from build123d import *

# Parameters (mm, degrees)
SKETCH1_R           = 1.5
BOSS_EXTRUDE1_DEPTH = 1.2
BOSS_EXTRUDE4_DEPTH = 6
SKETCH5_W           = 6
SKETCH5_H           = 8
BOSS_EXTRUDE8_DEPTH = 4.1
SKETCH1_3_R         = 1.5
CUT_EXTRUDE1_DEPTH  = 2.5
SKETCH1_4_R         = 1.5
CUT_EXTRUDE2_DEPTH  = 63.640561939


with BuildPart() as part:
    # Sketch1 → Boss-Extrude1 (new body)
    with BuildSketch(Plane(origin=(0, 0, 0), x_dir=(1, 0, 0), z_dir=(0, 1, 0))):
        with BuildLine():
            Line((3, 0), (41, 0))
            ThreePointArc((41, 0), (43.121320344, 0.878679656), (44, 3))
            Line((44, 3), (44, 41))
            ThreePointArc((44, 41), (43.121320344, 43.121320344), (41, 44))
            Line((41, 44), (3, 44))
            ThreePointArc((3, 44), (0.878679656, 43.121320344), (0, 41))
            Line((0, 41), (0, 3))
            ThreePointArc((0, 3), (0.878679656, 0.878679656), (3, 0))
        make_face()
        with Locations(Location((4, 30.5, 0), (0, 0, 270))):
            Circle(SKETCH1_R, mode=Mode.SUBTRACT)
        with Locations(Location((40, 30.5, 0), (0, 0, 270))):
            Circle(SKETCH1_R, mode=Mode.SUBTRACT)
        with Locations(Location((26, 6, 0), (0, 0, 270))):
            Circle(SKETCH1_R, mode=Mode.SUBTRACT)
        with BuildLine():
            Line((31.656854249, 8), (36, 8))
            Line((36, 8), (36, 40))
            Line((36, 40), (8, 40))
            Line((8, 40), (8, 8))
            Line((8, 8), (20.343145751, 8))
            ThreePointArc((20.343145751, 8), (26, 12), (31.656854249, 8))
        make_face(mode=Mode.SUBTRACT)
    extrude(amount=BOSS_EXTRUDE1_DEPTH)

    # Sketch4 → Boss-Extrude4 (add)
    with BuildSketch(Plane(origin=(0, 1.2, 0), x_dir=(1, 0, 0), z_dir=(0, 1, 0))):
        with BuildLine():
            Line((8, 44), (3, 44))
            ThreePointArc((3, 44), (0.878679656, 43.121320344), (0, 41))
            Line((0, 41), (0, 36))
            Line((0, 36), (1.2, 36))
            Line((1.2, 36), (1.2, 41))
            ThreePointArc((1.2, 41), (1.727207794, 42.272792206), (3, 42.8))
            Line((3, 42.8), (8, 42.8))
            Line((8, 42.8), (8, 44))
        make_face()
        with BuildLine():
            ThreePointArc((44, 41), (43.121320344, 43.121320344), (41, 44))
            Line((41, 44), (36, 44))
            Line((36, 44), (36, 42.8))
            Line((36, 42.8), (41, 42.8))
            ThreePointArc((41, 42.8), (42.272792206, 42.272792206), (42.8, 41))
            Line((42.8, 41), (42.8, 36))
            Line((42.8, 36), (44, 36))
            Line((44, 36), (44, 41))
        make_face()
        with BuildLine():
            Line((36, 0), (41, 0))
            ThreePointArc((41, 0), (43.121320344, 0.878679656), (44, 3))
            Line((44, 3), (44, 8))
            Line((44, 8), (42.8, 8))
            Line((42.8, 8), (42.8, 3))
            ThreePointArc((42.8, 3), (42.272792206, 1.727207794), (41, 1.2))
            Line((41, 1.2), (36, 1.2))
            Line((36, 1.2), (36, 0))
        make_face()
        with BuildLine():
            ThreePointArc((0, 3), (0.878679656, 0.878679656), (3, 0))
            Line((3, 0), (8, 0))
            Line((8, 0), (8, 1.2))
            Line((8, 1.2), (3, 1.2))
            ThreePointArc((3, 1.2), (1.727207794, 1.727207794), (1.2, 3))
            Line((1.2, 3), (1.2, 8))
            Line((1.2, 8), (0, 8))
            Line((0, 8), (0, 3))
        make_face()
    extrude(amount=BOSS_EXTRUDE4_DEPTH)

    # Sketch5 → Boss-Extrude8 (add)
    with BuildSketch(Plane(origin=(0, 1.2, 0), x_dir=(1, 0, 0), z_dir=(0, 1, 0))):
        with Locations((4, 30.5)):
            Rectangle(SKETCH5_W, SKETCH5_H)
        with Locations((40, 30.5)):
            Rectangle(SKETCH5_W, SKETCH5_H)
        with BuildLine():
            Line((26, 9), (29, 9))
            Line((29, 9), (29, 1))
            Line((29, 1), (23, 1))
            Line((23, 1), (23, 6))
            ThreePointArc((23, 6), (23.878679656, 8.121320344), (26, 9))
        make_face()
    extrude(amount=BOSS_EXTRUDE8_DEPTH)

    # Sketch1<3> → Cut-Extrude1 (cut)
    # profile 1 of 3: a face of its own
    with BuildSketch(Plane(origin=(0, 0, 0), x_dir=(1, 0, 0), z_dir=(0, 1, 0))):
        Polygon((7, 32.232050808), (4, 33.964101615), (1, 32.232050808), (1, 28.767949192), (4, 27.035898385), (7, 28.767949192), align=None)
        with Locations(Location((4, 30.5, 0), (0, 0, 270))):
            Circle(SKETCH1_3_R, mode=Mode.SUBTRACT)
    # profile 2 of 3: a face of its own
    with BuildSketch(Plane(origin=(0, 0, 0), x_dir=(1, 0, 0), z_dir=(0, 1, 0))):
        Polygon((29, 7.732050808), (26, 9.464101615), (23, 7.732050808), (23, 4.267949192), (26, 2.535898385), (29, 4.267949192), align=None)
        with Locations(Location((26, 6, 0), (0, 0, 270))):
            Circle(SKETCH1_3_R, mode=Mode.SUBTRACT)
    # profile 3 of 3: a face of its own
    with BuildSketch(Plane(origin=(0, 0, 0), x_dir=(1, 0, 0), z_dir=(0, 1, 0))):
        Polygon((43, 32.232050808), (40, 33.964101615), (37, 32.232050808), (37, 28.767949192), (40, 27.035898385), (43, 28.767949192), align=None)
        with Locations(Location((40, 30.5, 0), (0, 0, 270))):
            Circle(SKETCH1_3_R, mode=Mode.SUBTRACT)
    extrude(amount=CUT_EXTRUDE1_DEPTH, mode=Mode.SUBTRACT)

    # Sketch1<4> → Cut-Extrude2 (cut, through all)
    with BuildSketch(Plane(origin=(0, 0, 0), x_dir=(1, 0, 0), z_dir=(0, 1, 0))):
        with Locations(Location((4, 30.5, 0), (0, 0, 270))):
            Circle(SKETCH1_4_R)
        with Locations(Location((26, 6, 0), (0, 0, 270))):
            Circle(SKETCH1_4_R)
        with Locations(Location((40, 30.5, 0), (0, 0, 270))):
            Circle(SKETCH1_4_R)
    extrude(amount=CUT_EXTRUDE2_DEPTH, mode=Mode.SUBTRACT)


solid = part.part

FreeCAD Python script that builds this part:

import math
import FreeCAD as App
import Part
import Sketcher
Q = App.Units.Quantity

doc = App.newDocument("Part")
body = doc.addObject("PartDesign::Body", "Body")

# Sketch on XZ plane
sketch1 = doc.addObject("Sketcher::SketchObject", "Sketch")
body.addObject(sketch1)
sketch1.AttachmentSupport = (doc.XZ_Plane, [""])
sketch1.MapMode = "FlatFace"
sketch1.addGeometry(Part.LineSegment(App.Vector(3, 0, 0), App.Vector(41, 0, 0)), False)
sketch1.addGeometry(Part.ArcOfCircle(Part.Circle(App.Vector(41, -3, 0), App.Vector(0, 0, 1), 3), math.radians(0), math.radians(90)), False)
sketch1.addGeometry(Part.LineSegment(App.Vector(44, -3, 0), App.Vector(44, -41, 0)), False)
sketch1.addGeometry(Part.ArcOfCircle(Part.Circle(App.Vector(41, -41, 0), App.Vector(0, 0, 1), 3), math.radians(-90), math.radians(0)), False)
sketch1.addGeometry(Part.LineSegment(App.Vector(41, -44, 0), App.Vector(3, -44, 0)), False)
sketch1.addGeometry(Part.ArcOfCircle(Part.Circle(App.Vector(3, -41, 0), App.Vector(0, 0, 1), 3), math.radians(180), math.radians(270)), False)
sketch1.addGeometry(Part.LineSegment(App.Vector(0, -41, 0), App.Vector(0, -3, 0)), False)
sketch1.addGeometry(Part.ArcOfCircle(Part.Circle(App.Vector(3, -3, 0), App.Vector(0, 0, 1), 3), math.radians(90), math.radians(180)), False)
sketch1.addGeometry(Part.Circle(App.Vector(26, -6, 0), App.Vector(0, 0, 1), 1.5), False)
sketch1.addGeometry(Part.Circle(App.Vector(4, -30.5, 0), App.Vector(0, 0, 1), 1.5), False)
sketch1.addGeometry(Part.LineSegment(App.Vector(36, -8, 0), App.Vector(31.7, -8, 0)), False)
sketch1.addGeometry(Part.ArcOfCircle(Part.Circle(App.Vector(26, -6, 0), App.Vector(0, 0, 1), 6), math.radians(-161), math.radians(-19)), False)
sketch1.addGeometry(Part.LineSegment(App.Vector(20.3, -8, 0), App.Vector(8, -8, 0)), False)
sketch1.addGeometry(Part.LineSegment(App.Vector(8, -8, 0), App.Vector(8, -40, 0)), False)
sketch1.addGeometry(Part.LineSegment(App.Vector(8, -40, 0), App.Vector(36, -40, 0)), False)
sketch1.addGeometry(Part.LineSegment(App.Vector(36, -40, 0), App.Vector(36, -8, 0)), False)
sketch1.addGeometry(Part.Circle(App.Vector(40, -30.5, 0), App.Vector(0, 0, 1), 1.5), False)
sketch1.addConstraint(Sketcher.Constraint("Tangent", 0, 2, 1, 2))
sketch1.addConstraint(Sketcher.Constraint("Tangent", 1, 1, 2, 1))
sketch1.addConstraint(Sketcher.Constraint("Tangent", 2, 2, 3, 2))
sketch1.addConstraint(Sketcher.Constraint("Tangent", 3, 1, 4, 1))
sketch1.addConstraint(Sketcher.Constraint("Tangent", 4, 2, 5, 2))
sketch1.addConstraint(Sketcher.Constraint("Tangent", 5, 1, 6, 1))
sketch1.addConstraint(Sketcher.Constraint("Tangent", 6, 2, 7, 2))
sketch1.addConstraint(Sketcher.Constraint("Tangent", 7, 1, 0, 1))
sketch1.addConstraint(Sketcher.Constraint("Coincident", 10, 2, 11, 2))
sketch1.addConstraint(Sketcher.Constraint("Coincident", 11, 1, 12, 1))
sketch1.addConstraint(Sketcher.Constraint("Coincident", 12, 2, 13, 1))
sketch1.addConstraint(Sketcher.Constraint("Coincident", 13, 2, 14, 1))
sketch1.addConstraint(Sketcher.Constraint("Coincident", 14, 2, 15, 1))
sketch1.addConstraint(Sketcher.Constraint("Coincident", 15, 2, 10, 1))
sketch1.addConstraint(Sketcher.Constraint("Horizontal", 0))
sketch1.addConstraint(Sketcher.Constraint("Vertical", 2))
sketch1.addConstraint(Sketcher.Constraint("Horizontal", 4))
sketch1.addConstraint(Sketcher.Constraint("Vertical", 6))
sketch1.addConstraint(Sketcher.Constraint("Horizontal", 10))
sketch1.addConstraint(Sketcher.Constraint("Horizontal", 12))
sketch1.addConstraint(Sketcher.Constraint("Vertical", 13))
sketch1.addConstraint(Sketcher.Constraint("Horizontal", 14))
sketch1.addConstraint(Sketcher.Constraint("Vertical", 15))
sketch1.addConstraint(Sketcher.Constraint("Coincident", 11, 3, 8, 3))
sketch1.addConstraint(Sketcher.Constraint("Equal", 1, 3))
sketch1.addConstraint(Sketcher.Constraint("Equal", 3, 5))
sketch1.addConstraint(Sketcher.Constraint("Equal", 5, 7))
sketch1.addConstraint(Sketcher.Constraint("Equal", 8, 9))
sketch1.addConstraint(Sketcher.Constraint("Equal", 9, 16))
sketch1.addConstraint(Sketcher.Constraint("PointOnObject", 0, 2, -1))
sketch1.addConstraint(Sketcher.Constraint("PointOnObject", 5, 1, -2))
sketch1.addConstraint(Sketcher.Constraint("Horizontal", 9, 3, 16, 3))
sketch1.addConstraint(Sketcher.Constraint("Horizontal", 10, 2, 11, 1))
sketch1.addConstraint(Sketcher.Constraint("Equal", 4, 2))
sketch1.addConstraint(Sketcher.Constraint("Diameter", 8, Q("3 mm")))
sketch1.addConstraint(Sketcher.Constraint("Radius", 1, Q("3 mm")))
sketch1.addConstraint(Sketcher.Constraint("Radius", 11, Q("6 mm")))
sketch1.addConstraint(Sketcher.Constraint("DistanceX", 0, 1, 0, 2, Q("38 mm")))
sketch1.addConstraint(Sketcher.Constraint("DistanceX", 14, 1, 14, 2, Q("28 mm")))
sketch1.addConstraint(Sketcher.Constraint("DistanceY", 13, 2, 13, 1, Q("32 mm")))
sketch1.addConstraint(Sketcher.Constraint("DistanceX", -1, 1, 8, 3, Q("26 mm")))
sketch1.addConstraint(Sketcher.Constraint("DistanceY", 8, 3, -1, 1, Q("6 mm")))
sketch1.addConstraint(Sketcher.Constraint("DistanceX", -1, 1, 9, 3, Q("4 mm")))
sketch1.addConstraint(Sketcher.Constraint("DistanceX", -1, 1, 16, 3, Q("40 mm")))
sketch1.addConstraint(Sketcher.Constraint("DistanceY", 10, 2, -1, 1, Q("8 mm")))
sketch1.addConstraint(Sketcher.Constraint("DistanceX", -1, 1, 12, 2, Q("8 mm")))
sketch1.addConstraint(Sketcher.Constraint("DistanceY", 9, 3, -1, 1, Q("30.5 mm")))
pad1 = doc.addObject("PartDesign::Pad", "Pad")
body.addObject(pad1)
pad1.Profile = sketch1
pad1.Length = 1.2
pad1.Reversed = True

# Sketch on XZ plane
sketch2 = doc.addObject("Sketcher::SketchObject", "Sketch001")
body.addObject(sketch2)
sketch2.AttachmentSupport = (doc.XZ_Plane, [""])
sketch2.MapMode = "FlatFace"
sketch2.AttachmentOffset = App.Placement(App.Vector(0, 0, -1.2), App.Rotation())
sketch2.addGeometry(Part.LineSegment(App.Vector(8, -44, 0), App.Vector(3, -44, 0)), False)
sketch2.addGeometry(Part.ArcOfCircle(Part.Circle(App.Vector(3, -41, 0), App.Vector(0, 0, 1), 3), math.radians(180), math.radians(270)), False)
sketch2.addGeometry(Part.LineSegment(App.Vector(0, -41, 0), App.Vector(0, -36, 0)), False)
sketch2.addGeometry(Part.LineSegment(App.Vector(0, -36, 0), App.Vector(1.2, -36, 0)), False)
sketch2.addGeometry(Part.LineSegment(App.Vector(1.2, -36, 0), App.Vector(1.2, -41, 0)), False)
sketch2.addGeometry(Part.ArcOfCircle(Part.Circle(App.Vector(3, -41, 0), App.Vector(0, 0, 1), 1.8), math.radians(180), math.radians(270)), False)
sketch2.addGeometry(Part.LineSegment(App.Vector(3, -42.8, 0), App.Vector(8, -42.8, 0)), False)
sketch2.addGeometry(Part.LineSegment(App.Vector(8, -42.8, 0), App.Vector(8, -44, 0)), False)
sketch2.addGeometry(Part.ArcOfCircle(Part.Circle(App.Vector(41, -41, 0), App.Vector(0, 0, 1), 3), math.radians(-90), math.radians(0)), False)
sketch2.addGeometry(Part.LineSegment(App.Vector(41, -44, 0), App.Vector(36, -44, 0)), False)
sketch2.addGeometry(Part.LineSegment(App.Vector(36, -44, 0), App.Vector(36, -42.8, 0)), False)
sketch2.addGeometry(Part.LineSegment(App.Vector(36, -42.8, 0), App.Vector(41, -42.8, 0)), False)
sketch2.addGeometry(Part.ArcOfCircle(Part.Circle(App.Vector(41, -41, 0), App.Vector(0, 0, 1), 1.8), math.radians(-90), math.radians(0)), False)
sketch2.addGeometry(Part.LineSegment(App.Vector(42.8, -41, 0), App.Vector(42.8, -36, 0)), False)
sketch2.addGeometry(Part.LineSegment(App.Vector(42.8, -36, 0), App.Vector(44, -36, 0)), False)
sketch2.addGeometry(Part.LineSegment(App.Vector(44, -36, 0), App.Vector(44, -41, 0)), False)
sketch2.addGeometry(Part.LineSegment(App.Vector(36, 0, 0), App.Vector(41, 0, 0)), False)
sketch2.addGeometry(Part.ArcOfCircle(Part.Circle(App.Vector(41, -3, 0), App.Vector(0, 0, 1), 3), math.radians(0), math.radians(90)), False)
sketch2.addGeometry(Part.LineSegment(App.Vector(44, -3, 0), App.Vector(44, -8, 0)), False)
sketch2.addGeometry(Part.LineSegment(App.Vector(44, -8, 0), App.Vector(42.8, -8, 0)), False)
sketch2.addGeometry(Part.LineSegment(App.Vector(42.8, -8, 0), App.Vector(42.8, -3, 0)), False)
sketch2.addGeometry(Part.ArcOfCircle(Part.Circle(App.Vector(41, -3, 0), App.Vector(0, 0, 1), 1.8), math.radians(0), math.radians(90)), False)
sketch2.addGeometry(Part.LineSegment(App.Vector(41, -1.2, 0), App.Vector(36, -1.2, 0)), False)
sketch2.addGeometry(Part.LineSegment(App.Vector(36, -1.2, 0), App.Vector(36, 0, 0)), False)
sketch2.addGeometry(Part.ArcOfCircle(Part.Circle(App.Vector(3, -3, 0), App.Vector(0, 0, 1), 3), math.radians(90), math.radians(180)), False)
sketch2.addGeometry(Part.LineSegment(App.Vector(3, 0, 0), App.Vector(8, 0, 0)), False)
sketch2.addGeometry(Part.LineSegment(App.Vector(8, 0, 0), App.Vector(8, -1.2, 0)), False)
sketch2.addGeometry(Part.LineSegment(App.Vector(8, -1.2, 0), App.Vector(3, -1.2, 0)), False)
sketch2.addGeometry(Part.ArcOfCircle(Part.Circle(App.Vector(3, -3, 0), App.Vector(0, 0, 1), 1.8), math.radians(90), math.radians(180)), False)
sketch2.addGeometry(Part.LineSegment(App.Vector(1.2, -3, 0), App.Vector(1.2, -8, 0)), False)
sketch2.addGeometry(Part.LineSegment(App.Vector(1.2, -8, 0), App.Vector(0, -8, 0)), False)
sketch2.addGeometry(Part.LineSegment(App.Vector(0, -8, 0), App.Vector(0, -3, 0)), False)
sketch2.addConstraint(Sketcher.Constraint("Tangent", 0, 2, 1, 2))
sketch2.addConstraint(Sketcher.Constraint("Tangent", 1, 1, 2, 1))
sketch2.addConstraint(Sketcher.Constraint("Coincident", 2, 2, 3, 1))
sketch2.addConstraint(Sketcher.Constraint("Coincident", 3, 2, 4, 1))
sketch2.addConstraint(Sketcher.Constraint("Tangent", 4, 2, 5, 1))
sketch2.addConstraint(Sketcher.Constraint("Tangent", 5, 2, 6, 1))
sketch2.addConstraint(Sketcher.Constraint("Coincident", 6, 2, 7, 1))
sketch2.addConstraint(Sketcher.Constraint("Coincident", 7, 2, 0, 1))
sketch2.addConstraint(Sketcher.Constraint("Tangent", 8, 1, 9, 1))
sketch2.addConstraint(Sketcher.Constraint("Coincident", 9, 2, 10, 1))
sketch2.addConstraint(Sketcher.Constraint("Coincident", 10, 2, 11, 1))
sketch2.addConstraint(Sketcher.Constraint("Tangent", 11, 2, 12, 1))
sketch2.addConstraint(Sketcher.Constraint("Tangent", 12, 2, 13, 1))
sketch2.addConstraint(Sketcher.Constraint("Coincident", 13, 2, 14, 1))
sketch2.addConstraint(Sketcher.Constraint("Coincident", 14, 2, 15, 1))
sketch2.addConstraint(Sketcher.Constraint("Tangent", 15, 2, 8, 2))
sketch2.addConstraint(Sketcher.Constraint("Tangent", 16, 2, 17, 2))
sketch2.addConstraint(Sketcher.Constraint("Tangent", 17, 1, 18, 1))
sketch2.addConstraint(Sketcher.Constraint("Coincident", 18, 2, 19, 1))
sketch2.addConstraint(Sketcher.Constraint("Coincident", 19, 2, 20, 1))
sketch2.addConstraint(Sketcher.Constraint("Tangent", 20, 2, 21, 1))
sketch2.addConstraint(Sketcher.Constraint("Tangent", 21, 2, 22, 1))
sketch2.addConstraint(Sketcher.Constraint("Coincident", 22, 2, 23, 1))
sketch2.addConstraint(Sketcher.Constraint("Coincident", 23, 2, 16, 1))
sketch2.addConstraint(Sketcher.Constraint("Tangent", 24, 1, 25, 1))
sketch2.addConstraint(Sketcher.Constraint("Coincident", 25, 2, 26, 1))
sketch2.addConstraint(Sketcher.Constraint("Coincident", 26, 2, 27, 1))
sketch2.addConstraint(Sketcher.Constraint("Tangent", 27, 2, 28, 1))
sketch2.addConstraint(Sketcher.Constraint("Tangent", 28, 2, 29, 1))
sketch2.addConstraint(Sketcher.Constraint("Coincident", 29, 2, 30, 1))
sketch2.addConstraint(Sketcher.Constraint("Coincident", 30, 2, 31, 1))
sketch2.addConstraint(Sketcher.Constraint("Tangent", 31, 2, 24, 2))
sketch2.addConstraint(Sketcher.Constraint("Horizontal", 0))
sketch2.addConstraint(Sketcher.Constraint("Vertical", 2))
sketch2.addConstraint(Sketcher.Constraint("Horizontal", 3))
sketch2.addConstraint(Sketcher.Constraint("Vertical", 4))
sketch2.addConstraint(Sketcher.Constraint("Horizontal", 6))
sketch2.addConstraint(Sketcher.Constraint("Vertical", 7))
sketch2.addConstraint(Sketcher.Constraint("Horizontal", 9))
sketch2.addConstraint(Sketcher.Constraint("Vertical", 10))
sketch2.addConstraint(Sketcher.Constraint("Horizontal", 11))
sketch2.addConstraint(Sketcher.Constraint("Vertical", 13))
sketch2.addConstraint(Sketcher.Constraint("Horizontal", 14))
sketch2.addConstraint(Sketcher.Constraint("Vertical", 15))
sketch2.addConstraint(Sketcher.Constraint("Horizontal", 16))
sketch2.addConstraint(Sketcher.Constraint("Vertical", 18))
sketch2.addConstraint(Sketcher.Constraint("Horizontal", 19))
sketch2.addConstraint(Sketcher.Constraint("Vertical", 20))
sketch2.addConstraint(Sketcher.Constraint("Horizontal", 22))
sketch2.addConstraint(Sketcher.Constraint("Vertical", 23))
sketch2.addConstraint(Sketcher.Constraint("Horizontal", 25))
sketch2.addConstraint(Sketcher.Constraint("Vertical", 26))
sketch2.addConstraint(Sketcher.Constraint("Horizontal", 27))
sketch2.addConstraint(Sketcher.Constraint("Vertical", 29))
sketch2.addConstraint(Sketcher.Constraint("Horizontal", 30))
sketch2.addConstraint(Sketcher.Constraint("Vertical", 31))
sketch2.addConstraint(Sketcher.Constraint("Coincident", 5, 3, 1, 3))
sketch2.addConstraint(Sketcher.Constraint("Coincident", 12, 3, 8, 3))
sketch2.addConstraint(Sketcher.Constraint("Coincident", 21, 3, 17, 3))
sketch2.addConstraint(Sketcher.Constraint("Coincident", 28, 3, 24, 3))
sketch2.addConstraint(Sketcher.Constraint("Equal", 1, 8))
sketch2.addConstraint(Sketcher.Constraint("Equal", 5, 12))
sketch2.addConstraint(Sketcher.Constraint("Equal", 8, 17))
sketch2.addConstraint(Sketcher.Constraint("Equal", 12, 21))
sketch2.addConstraint(Sketcher.Constraint("Equal", 17, 24))
sketch2.addConstraint(Sketcher.Constraint("Equal", 21, 28))
sketch2.addConstraint(Sketcher.Constraint("PointOnObject", 1, 1, -2))
sketch2.addConstraint(Sketcher.Constraint("PointOnObject", 16, 2, -1))
sketch2.addConstraint(Sketcher.Constraint("PointOnObject", 24, 1, -1))
sketch2.addConstraint(Sketcher.Constraint("PointOnObject", 30, 2, -2))
sketch2.addConstraint(Sketcher.Constraint("Horizontal", 5, 3, 8, 3))
sketch2.addConstraint(Sketcher.Constraint("Horizontal", 3, 2, 13, 2))
sketch2.addConstraint(Sketcher.Constraint("Horizontal", 19, 2, 29, 2))
sketch2.addConstraint(Sketcher.Constraint("Vertical", 12, 3, 17, 3))
sketch2.addConstraint(Sketcher.Constraint("Vertical", 10, 2, 22, 2))
sketch2.addConstraint(Sketcher.Constraint("Vertical", 7, 2, 25, 2))
sketch2.addConstraint(Sketcher.Constraint("Equal", 6, 9))
sketch2.addConstraint(Sketcher.Constraint("Equal", 27, 2))
sketch2.addConstraint(Sketcher.Constraint("Equal", 15, 18))
sketch2.addConstraint(Sketcher.Constraint("Radius", 1, Q("3 mm")))
sketch2.addConstraint(Sketcher.Constraint("Radius", 5, Q("1.8 mm")))
sketch2.addConstraint(Sketcher.Constraint("DistanceX", 0, 2, 0, 1, Q("5 mm")))
sketch2.addConstraint(Sketcher.Constraint("DistanceY", 1, 3, -1, 1, Q("41 mm")))
sketch2.addConstraint(Sketcher.Constraint("DistanceX", -1, 1, 8, 3, Q("41 mm")))
pad2 = doc.addObject("PartDesign::Pad", "Pad001")
body.addObject(pad2)
pad2.Profile = sketch2
pad2.Length = 6
pad2.Reversed = True

# Sketch on XZ plane
sketch3 = doc.addObject("Sketcher::SketchObject", "Sketch002")
body.addObject(sketch3)
sketch3.AttachmentSupport = (doc.XZ_Plane, [""])
sketch3.MapMode = "FlatFace"
sketch3.AttachmentOffset = App.Placement(App.Vector(0, 0, -1.2), App.Rotation())
sketch3.addGeometry(Part.LineSegment(App.Vector(1, -34.5, 0), App.Vector(1, -26.5, 0)), False)
sketch3.addGeometry(Part.LineSegment(App.Vector(1, -26.5, 0), App.Vector(7, -26.5, 0)), False)
sketch3.addGeometry(Part.LineSegment(App.Vector(7, -26.5, 0), App.Vector(7, -34.5, 0)), False)
sketch3.addGeometry(Part.LineSegment(App.Vector(7, -34.5, 0), App.Vector(1, -34.5, 0)), False)
sketch3.addGeometry(Part.LineSegment(App.Vector(37, -34.5, 0), App.Vector(37, -26.5, 0)), False)
sketch3.addGeometry(Part.LineSegment(App.Vector(37, -26.5, 0), App.Vector(43, -26.5, 0)), False)
sketch3.addGeometry(Part.LineSegment(App.Vector(43, -26.5, 0), App.Vector(43, -34.5, 0)), False)
sketch3.addGeometry(Part.LineSegment(App.Vector(43, -34.5, 0), App.Vector(37, -34.5, 0)), False)
sketch3.addGeometry(Part.LineSegment(App.Vector(29, -9, 0), App.Vector(26, -9, 0)), False)
sketch3.addGeometry(Part.ArcOfCircle(Part.Circle(App.Vector(26, -6, 0), App.Vector(0, 0, 1), 3), math.radians(180), math.radians(270)), False)
sketch3.addGeometry(Part.LineSegment(App.Vector(23, -6, 0), App.Vector(23, -1, 0)), False)
sketch3.addGeometry(Part.LineSegment(App.Vector(23, -1, 0), App.Vector(29, -1, 0)), False)
sketch3.addGeometry(Part.LineSegment(App.Vector(29, -1, 0), App.Vector(29, -9, 0)), False)
sketch3.addConstraint(Sketcher.Constraint("Coincident", 0, 2, 1, 1))
sketch3.addConstraint(Sketcher.Constraint("Coincident", 1, 2, 2, 1))
sketch3.addConstraint(Sketcher.Constraint("Coincident", 2, 2, 3, 1))
sketch3.addConstraint(Sketcher.Constraint("Coincident", 3, 2, 0, 1))
sketch3.addConstraint(Sketcher.Constraint("Coincident", 4, 2, 5, 1))
sketch3.addConstraint(Sketcher.Constraint("Coincident", 5, 2, 6, 1))
sketch3.addConstraint(Sketcher.Constraint("Coincident", 6, 2, 7, 1))
sketch3.addConstraint(Sketcher.Constraint("Coincident", 7, 2, 4, 1))
sketch3.addConstraint(Sketcher.Constraint("Tangent", 8, 2, 9, 2))
sketch3.addConstraint(Sketcher.Constraint("Tangent", 9, 1, 10, 1))
sketch3.addConstraint(Sketcher.Constraint("Coincident", 10, 2, 11, 1))
sketch3.addConstraint(Sketcher.Constraint("Coincident", 11, 2, 12, 1))
sketch3.addConstraint(Sketcher.Constraint("Coincident", 12, 2, 8, 1))
sketch3.addConstraint(Sketcher.Constraint("Vertical", 0))
sketch3.addConstraint(Sketcher.Constraint("Horizontal", 1))
sketch3.addConstraint(Sketcher.Constraint("Vertical", 2))
sketch3.addConstraint(Sketcher.Constraint("Horizontal", 3))
sketch3.addConstraint(Sketcher.Constraint("Vertical", 4))
sketch3.addConstraint(Sketcher.Constraint("Horizontal", 5))
sketch3.addConstraint(Sketcher.Constraint("Vertical", 6))
sketch3.addConstraint(Sketcher.Constraint("Horizontal", 7))
sketch3.addConstraint(Sketcher.Constraint("Horizontal", 8))
sketch3.addConstraint(Sketcher.Constraint("Vertical", 10))
sketch3.addConstraint(Sketcher.Constraint("Horizontal", 11))
sketch3.addConstraint(Sketcher.Constraint("Vertical", 12))
sketch3.addConstraint(Sketcher.Constraint("Horizontal", 1, 2, 4, 2))
sketch3.addConstraint(Sketcher.Constraint("Horizontal", 3, 2, 6, 2))
sketch3.addConstraint(Sketcher.Constraint("Equal", 3, 5))
sketch3.addConstraint(Sketcher.Constraint("Equal", 7, 11))
sketch3.addConstraint(Sketcher.Constraint("Equal", 6, 12))
sketch3.addConstraint(Sketcher.Constraint("Radius", 9, Q("3 mm")))
sketch3.addConstraint(Sketcher.Constraint("DistanceX", 1, 1, 1, 2, Q("6 mm")))
sketch3.addConstraint(Sketcher.Constraint("DistanceY", 0, 1, 0, 2, Q("8 mm")))
sketch3.addConstraint(Sketcher.Constraint("DistanceX", -1, 1, 9, 3, Q("26 mm")))
sketch3.addConstraint(Sketcher.Constraint("DistanceY", 9, 3, -1, 1, Q("6 mm")))
sketch3.addConstraint(Sketcher.Constraint("DistanceX", -1, 1, 0, 2, Q("1 mm")))
sketch3.addConstraint(Sketcher.Constraint("DistanceX", -1, 1, 4, 2, Q("37 mm")))
sketch3.addConstraint(Sketcher.Constraint("DistanceY", 0, 2, -1, 1, Q("26.5 mm")))
pad3 = doc.addObject("PartDesign::Pad", "Pad002")
body.addObject(pad3)
pad3.Profile = sketch3
pad3.Length = 4.1
pad3.Reversed = True

# Sketch on XZ plane
sketch4 = doc.addObject("Sketcher::SketchObject", "Sketch003")
body.addObject(sketch4)
sketch4.AttachmentSupport = (doc.XZ_Plane, [""])
sketch4.MapMode = "FlatFace"
sketch4.addGeometry(Part.LineSegment(App.Vector(7, -32.2, 0), App.Vector(4, -34, 0)), False)
sketch4.addGeometry(Part.LineSegment(App.Vector(4, -34, 0), App.Vector(1, -32.2, 0)), False)
sketch4.addGeometry(Part.LineSegment(App.Vector(1, -32.2, 0), App.Vector(1, -28.8, 0)), False)
sketch4.addGeometry(Part.LineSegment(App.Vector(1, -28.8, 0), App.Vector(4, -27, 0)), False)
sketch4.addGeometry(Part.LineSegment(App.Vector(4, -27, 0), App.Vector(7, -28.8, 0)), False)
sketch4.addGeometry(Part.LineSegment(App.Vector(7, -28.8, 0), App.Vector(7, -32.2, 0)), False)
sketch4.addGeometry(Part.Circle(App.Vector(4, -30.5, 0), App.Vector(0, 0, 1), 1.5), False)
sketch4.addGeometry(Part.LineSegment(App.Vector(29, -7.7, 0), App.Vector(26, -9.5, 0)), False)
sketch4.addGeometry(Part.LineSegment(App.Vector(26, -9.5, 0), App.Vector(23, -7.7, 0)), False)
sketch4.addGeometry(Part.LineSegment(App.Vector(23, -7.7, 0), App.Vector(23, -4.3, 0)), False)
sketch4.addGeometry(Part.LineSegment(App.Vector(23, -4.3, 0), App.Vector(26, -2.5, 0)), False)
sketch4.addGeometry(Part.LineSegment(App.Vector(26, -2.5, 0), App.Vector(29, -4.3, 0)), False)
sketch4.addGeometry(Part.LineSegment(App.Vector(29, -4.3, 0), App.Vector(29, -7.7, 0)), False)
sketch4.addGeometry(Part.Circle(App.Vector(26, -6, 0), App.Vector(0, 0, 1), 1.5), False)
sketch4.addGeometry(Part.LineSegment(App.Vector(43, -32.2, 0), App.Vector(40, -34, 0)), False)
sketch4.addGeometry(Part.LineSegment(App.Vector(40, -34, 0), App.Vector(37, -32.2, 0)), False)
sketch4.addGeometry(Part.LineSegment(App.Vector(37, -32.2, 0), App.Vector(37, -28.8, 0)), False)
sketch4.addGeometry(Part.LineSegment(App.Vector(37, -28.8, 0), App.Vector(40, -27, 0)), False)
sketch4.addGeometry(Part.LineSegment(App.Vector(40, -27, 0), App.Vector(43, -28.8, 0)), False)
sketch4.addGeometry(Part.LineSegment(App.Vector(43, -28.8, 0), App.Vector(43, -32.2, 0)), False)
sketch4.addGeometry(Part.Circle(App.Vector(40, -30.5, 0), App.Vector(0, 0, 1), 1.5), False)
sketch4.addConstraint(Sketcher.Constraint("Coincident", 0, 2, 1, 1))
sketch4.addConstraint(Sketcher.Constraint("Coincident", 1, 2, 2, 1))
sketch4.addConstraint(Sketcher.Constraint("Coincident", 2, 2, 3, 1))
sketch4.addConstraint(Sketcher.Constraint("Coincident", 3, 2, 4, 1))
sketch4.addConstraint(Sketcher.Constraint("Coincident", 4, 2, 5, 1))
sketch4.addConstraint(Sketcher.Constraint("Coincident", 5, 2, 0, 1))
sketch4.addConstraint(Sketcher.Constraint("Coincident", 7, 2, 8, 1))
sketch4.addConstraint(Sketcher.Constraint("Coincident", 8, 2, 9, 1))
sketch4.addConstraint(Sketcher.Constraint("Coincident", 9, 2, 10, 1))
sketch4.addConstraint(Sketcher.Constraint("Coincident", 10, 2, 11, 1))
sketch4.addConstraint(Sketcher.Constraint("Coincident", 11, 2, 12, 1))
sketch4.addConstraint(Sketcher.Constraint("Coincident", 12, 2, 7, 1))
sketch4.addConstraint(Sketcher.Constraint("Coincident", 14, 2, 15, 1))
sketch4.addConstraint(Sketcher.Constraint("Coincident", 15, 2, 16, 1))
sketch4.addConstraint(Sketcher.Constraint("Coincident", 16, 2, 17, 1))
sketch4.addConstraint(Sketcher.Constraint("Coincident", 17, 2, 18, 1))
sketch4.addConstraint(Sketcher.Constraint("Coincident", 18, 2, 19, 1))
sketch4.addConstraint(Sketcher.Constraint("Coincident", 19, 2, 14, 1))
sketch4.addConstraint(Sketcher.Constraint("Vertical", 2))
sketch4.addConstraint(Sketcher.Constraint("Vertical", 5))
sketch4.addConstraint(Sketcher.Constraint("Vertical", 9))
sketch4.addConstraint(Sketcher.Constraint("Vertical", 12))
sketch4.addConstraint(Sketcher.Constraint("Vertical", 16))
sketch4.addConstraint(Sketcher.Constraint("Vertical", 19))
sketch4.addConstraint(Sketcher.Constraint("Equal", 6, 13))
sketch4.addConstraint(Sketcher.Constraint("Equal", 13, 20))
sketch4.addConstraint(Sketcher.Constraint("Parallel", 0, 3))
sketch4.addConstraint(Sketcher.Constraint("Parallel", 1, 4))
sketch4.addConstraint(Sketcher.Constraint("Parallel", 3, 7))
sketch4.addConstraint(Sketcher.Constraint("Parallel", 4, 8))
sketch4.addConstraint(Sketcher.Constraint("Parallel", 7, 10))
sketch4.addConstraint(Sketcher.Constraint("Parallel", 8, 11))
sketch4.addConstraint(Sketcher.Constraint("Parallel", 10, 14))
sketch4.addConstraint(Sketcher.Constraint("Parallel", 11, 15))
sketch4.addConstraint(Sketcher.Constraint("Parallel", 14, 17))
sketch4.addConstraint(Sketcher.Constraint("Parallel", 15, 18))
sketch4.addConstraint(Sketcher.Constraint("Horizontal", 6, 3, 20, 3))
sketch4.addConstraint(Sketcher.Constraint("Horizontal", 2, 2, 4, 2))
sketch4.addConstraint(Sketcher.Constraint("Horizontal", 1, 2, 5, 2))
sketch4.addConstraint(Sketcher.Constraint("Horizontal", 9, 2, 11, 2))
sketch4.addConstraint(Sketcher.Constraint("Horizontal", 8, 2, 12, 2))
sketch4.addConstraint(Sketcher.Constraint("Horizontal", 0, 2, 14, 2))
sketch4.addConstraint(Sketcher.Constraint("Horizontal", 5, 2, 15, 2))
sketch4.addConstraint(Sketcher.Constraint("Horizontal", 4, 2, 16, 2))
sketch4.addConstraint(Sketcher.Constraint("Horizontal", 3, 2, 17, 2))
sketch4.addConstraint(Sketcher.Constraint("Horizontal", 16, 2, 18, 2))
sketch4.addConstraint(Sketcher.Constraint("Vertical", 6, 3, 0, 2))
sketch4.addConstraint(Sketcher.Constraint("Vertical", 0, 2, 3, 2))
sketch4.addConstraint(Sketcher.Constraint("Vertical", 13, 3, 7, 2))
sketch4.addConstraint(Sketcher.Constraint("Vertical", 20, 3, 14, 2))
sketch4.addConstraint(Sketcher.Constraint("Equal", 5, 9))
sketch4.addConstraint(Sketcher.Constraint("Equal", 4, 7))
sketch4.addConstraint(Sketcher.Constraint("Diameter", 6, Q("3 mm")))
sketch4.addConstraint(Sketcher.Constraint("Angle", 0, Q("-150 deg")))
sketch4.addConstraint(Sketcher.Constraint("DistanceX", -1, 1, 6, 3, Q("4 mm")))
sketch4.addConstraint(Sketcher.Constraint("DistanceX", -1, 1, 13, 3, Q("26 mm")))
sketch4.addConstraint(Sketcher.Constraint("DistanceY", 13, 3, -1, 1, Q("6 mm")))
sketch4.addConstraint(Sketcher.Constraint("DistanceX", -1, 1, 20, 3, Q("40 mm")))
sketch4.addConstraint(Sketcher.Constraint("DistanceX", -1, 1, 1, 2, Q("1 mm")))
sketch4.addConstraint(Sketcher.Constraint("DistanceY", 6, 3, -1, 1, Q("30.5 mm")))
sketch4.addConstraint(Sketcher.Constraint("DistanceY", 4, 2, 9, 2, Q("24.5 mm")))
sketch4.addConstraint(Sketcher.Constraint("DistanceY", 2, 1, 2, 2, Q("3.464102 mm")))
sketch4.addConstraint(Sketcher.Constraint("DistanceY", 0, 2, -1, 1, Q("33.964102 mm")))
pocket1 = doc.addObject("PartDesign::Pocket", "Pocket")
body.addObject(pocket1)
pocket1.Profile = sketch4
pocket1.Length = 2.5

# Sketch on XZ plane
sketch5 = doc.addObject("Sketcher::SketchObject", "Sketch004")
body.addObject(sketch5)
sketch5.AttachmentSupport = (doc.XZ_Plane, [""])
sketch5.MapMode = "FlatFace"
sketch5.addGeometry(Part.Circle(App.Vector(4, -30.5, 0), App.Vector(0, 0, 1), 1.5), False)
sketch5.addGeometry(Part.Circle(App.Vector(26, -6, 0), App.Vector(0, 0, 1), 1.5), False)
sketch5.addGeometry(Part.Circle(App.Vector(40, -30.5, 0), App.Vector(0, 0, 1), 1.5), False)
sketch5.addConstraint(Sketcher.Constraint("Equal", 0, 1))
sketch5.addConstraint(Sketcher.Constraint("Equal", 1, 2))
sketch5.addConstraint(Sketcher.Constraint("Horizontal", 0, 3, 2, 3))
sketch5.addConstraint(Sketcher.Constraint("Diameter", 0, Q("3 mm")))
sketch5.addConstraint(Sketcher.Constraint("DistanceX", -1, 1, 0, 3, Q("4 mm")))
sketch5.addConstraint(Sketcher.Constraint("DistanceX", -1, 1, 1, 3, Q("26 mm")))
sketch5.addConstraint(Sketcher.Constraint("DistanceY", 1, 3, -1, 1, Q("6 mm")))
sketch5.addConstraint(Sketcher.Constraint("DistanceX", -1, 1, 2, 3, Q("40 mm")))
sketch5.addConstraint(Sketcher.Constraint("DistanceY", 0, 3, -1, 1, Q("30.5 mm")))
pocket2 = doc.addObject("PartDesign::Pocket", "Pocket001")
body.addObject(pocket2)
pocket2.Profile = sketch5
pocket2.Type = "ThroughAll"

doc.recompute()
